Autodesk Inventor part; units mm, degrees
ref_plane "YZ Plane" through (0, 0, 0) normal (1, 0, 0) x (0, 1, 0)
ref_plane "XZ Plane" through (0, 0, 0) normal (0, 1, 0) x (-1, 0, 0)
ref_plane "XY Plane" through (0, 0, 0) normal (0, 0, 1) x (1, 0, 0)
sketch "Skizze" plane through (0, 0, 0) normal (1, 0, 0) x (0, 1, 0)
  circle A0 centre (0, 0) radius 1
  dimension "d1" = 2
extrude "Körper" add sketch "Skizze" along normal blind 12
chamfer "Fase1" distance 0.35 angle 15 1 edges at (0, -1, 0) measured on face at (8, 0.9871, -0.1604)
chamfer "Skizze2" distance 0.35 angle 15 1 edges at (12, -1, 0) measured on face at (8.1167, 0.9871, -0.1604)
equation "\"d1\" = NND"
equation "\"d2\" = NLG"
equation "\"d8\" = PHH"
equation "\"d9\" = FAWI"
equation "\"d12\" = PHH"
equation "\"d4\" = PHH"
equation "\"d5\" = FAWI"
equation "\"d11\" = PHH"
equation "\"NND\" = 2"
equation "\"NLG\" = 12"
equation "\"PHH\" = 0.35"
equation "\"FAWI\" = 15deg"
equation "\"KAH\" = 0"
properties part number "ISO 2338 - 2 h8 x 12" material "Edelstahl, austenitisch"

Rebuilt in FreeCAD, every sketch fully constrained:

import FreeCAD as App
import Part
import Sketcher

V = App.Vector


def edges_at(feature, points):
    """Names of the edges that pass closest to the given points."""
    edges = feature.Shape.Edges
    near = lambda p: min(range(len(edges)), key=lambda i: edges[i].distToShape(Part.Vertex(*p))[0])
    return sorted({f"Edge{near(p) + 1}" for p in points})

doc = App.newDocument("Part")
params = doc.addObject("Spreadsheet::Sheet", "Params")
for row, (alias, value) in enumerate([
    ("sketch1_diameter", "2 mm"),
    ("pad1_length", "12 mm"),
    ("chamfer_size", "0.35 mm"),
    ("chamfer2_size", "0.35 mm"),
], start=1):
    params.set(f"A{row}", alias)
    params.set(f"B{row}", "=" + value)
    params.setAlias(f"B{row}", alias)

body = doc.addObject("PartDesign::Body", "Body")

sketch1 = doc.addObject("Sketcher::SketchObject", "Sketch")
body.addObject(sketch1)
sketch1.AttachmentSupport = (doc.YZ_Plane, [""])
sketch1.MapMode = "FlatFace"
sketch1.addGeometry(Part.Circle(V(0, 0, 0), V(0, 0, 1), 1), False)
sketch1.addConstraint([
    Sketcher.Constraint("Coincident", 0, 3, -1, 1),
    Sketcher.Constraint("Diameter", 0, 2.0),
])
sketch1.setExpression("Constraints[1]", "Params.sketch1_diameter")
pad1 = doc.addObject("PartDesign::Pad", "Pad")
body.addObject(pad1)
pad1.Profile = sketch1
pad1.setExpression("Length", "Params.pad1_length")
doc.recompute()

chamfer = doc.addObject("PartDesign::Chamfer", "Chamfer")
body.addObject(chamfer)
chamfer.Base = (pad1, edges_at(pad1, [(0, -1, 0)]))
chamfer.ChamferType = "Distance and Angle"
chamfer.setExpression("Size", "Params.chamfer_size")
chamfer.Angle = 15
doc.recompute()

chamfer2 = doc.addObject("PartDesign::Chamfer", "Chamfer001")
body.addObject(chamfer2)
chamfer2.Base = (chamfer, edges_at(chamfer, [(12, -1, 0)]))
chamfer2.ChamferType = "Distance and Angle"
chamfer2.setExpression("Size", "Params.chamfer2_size")
chamfer2.Angle = 15

doc.recompute()
